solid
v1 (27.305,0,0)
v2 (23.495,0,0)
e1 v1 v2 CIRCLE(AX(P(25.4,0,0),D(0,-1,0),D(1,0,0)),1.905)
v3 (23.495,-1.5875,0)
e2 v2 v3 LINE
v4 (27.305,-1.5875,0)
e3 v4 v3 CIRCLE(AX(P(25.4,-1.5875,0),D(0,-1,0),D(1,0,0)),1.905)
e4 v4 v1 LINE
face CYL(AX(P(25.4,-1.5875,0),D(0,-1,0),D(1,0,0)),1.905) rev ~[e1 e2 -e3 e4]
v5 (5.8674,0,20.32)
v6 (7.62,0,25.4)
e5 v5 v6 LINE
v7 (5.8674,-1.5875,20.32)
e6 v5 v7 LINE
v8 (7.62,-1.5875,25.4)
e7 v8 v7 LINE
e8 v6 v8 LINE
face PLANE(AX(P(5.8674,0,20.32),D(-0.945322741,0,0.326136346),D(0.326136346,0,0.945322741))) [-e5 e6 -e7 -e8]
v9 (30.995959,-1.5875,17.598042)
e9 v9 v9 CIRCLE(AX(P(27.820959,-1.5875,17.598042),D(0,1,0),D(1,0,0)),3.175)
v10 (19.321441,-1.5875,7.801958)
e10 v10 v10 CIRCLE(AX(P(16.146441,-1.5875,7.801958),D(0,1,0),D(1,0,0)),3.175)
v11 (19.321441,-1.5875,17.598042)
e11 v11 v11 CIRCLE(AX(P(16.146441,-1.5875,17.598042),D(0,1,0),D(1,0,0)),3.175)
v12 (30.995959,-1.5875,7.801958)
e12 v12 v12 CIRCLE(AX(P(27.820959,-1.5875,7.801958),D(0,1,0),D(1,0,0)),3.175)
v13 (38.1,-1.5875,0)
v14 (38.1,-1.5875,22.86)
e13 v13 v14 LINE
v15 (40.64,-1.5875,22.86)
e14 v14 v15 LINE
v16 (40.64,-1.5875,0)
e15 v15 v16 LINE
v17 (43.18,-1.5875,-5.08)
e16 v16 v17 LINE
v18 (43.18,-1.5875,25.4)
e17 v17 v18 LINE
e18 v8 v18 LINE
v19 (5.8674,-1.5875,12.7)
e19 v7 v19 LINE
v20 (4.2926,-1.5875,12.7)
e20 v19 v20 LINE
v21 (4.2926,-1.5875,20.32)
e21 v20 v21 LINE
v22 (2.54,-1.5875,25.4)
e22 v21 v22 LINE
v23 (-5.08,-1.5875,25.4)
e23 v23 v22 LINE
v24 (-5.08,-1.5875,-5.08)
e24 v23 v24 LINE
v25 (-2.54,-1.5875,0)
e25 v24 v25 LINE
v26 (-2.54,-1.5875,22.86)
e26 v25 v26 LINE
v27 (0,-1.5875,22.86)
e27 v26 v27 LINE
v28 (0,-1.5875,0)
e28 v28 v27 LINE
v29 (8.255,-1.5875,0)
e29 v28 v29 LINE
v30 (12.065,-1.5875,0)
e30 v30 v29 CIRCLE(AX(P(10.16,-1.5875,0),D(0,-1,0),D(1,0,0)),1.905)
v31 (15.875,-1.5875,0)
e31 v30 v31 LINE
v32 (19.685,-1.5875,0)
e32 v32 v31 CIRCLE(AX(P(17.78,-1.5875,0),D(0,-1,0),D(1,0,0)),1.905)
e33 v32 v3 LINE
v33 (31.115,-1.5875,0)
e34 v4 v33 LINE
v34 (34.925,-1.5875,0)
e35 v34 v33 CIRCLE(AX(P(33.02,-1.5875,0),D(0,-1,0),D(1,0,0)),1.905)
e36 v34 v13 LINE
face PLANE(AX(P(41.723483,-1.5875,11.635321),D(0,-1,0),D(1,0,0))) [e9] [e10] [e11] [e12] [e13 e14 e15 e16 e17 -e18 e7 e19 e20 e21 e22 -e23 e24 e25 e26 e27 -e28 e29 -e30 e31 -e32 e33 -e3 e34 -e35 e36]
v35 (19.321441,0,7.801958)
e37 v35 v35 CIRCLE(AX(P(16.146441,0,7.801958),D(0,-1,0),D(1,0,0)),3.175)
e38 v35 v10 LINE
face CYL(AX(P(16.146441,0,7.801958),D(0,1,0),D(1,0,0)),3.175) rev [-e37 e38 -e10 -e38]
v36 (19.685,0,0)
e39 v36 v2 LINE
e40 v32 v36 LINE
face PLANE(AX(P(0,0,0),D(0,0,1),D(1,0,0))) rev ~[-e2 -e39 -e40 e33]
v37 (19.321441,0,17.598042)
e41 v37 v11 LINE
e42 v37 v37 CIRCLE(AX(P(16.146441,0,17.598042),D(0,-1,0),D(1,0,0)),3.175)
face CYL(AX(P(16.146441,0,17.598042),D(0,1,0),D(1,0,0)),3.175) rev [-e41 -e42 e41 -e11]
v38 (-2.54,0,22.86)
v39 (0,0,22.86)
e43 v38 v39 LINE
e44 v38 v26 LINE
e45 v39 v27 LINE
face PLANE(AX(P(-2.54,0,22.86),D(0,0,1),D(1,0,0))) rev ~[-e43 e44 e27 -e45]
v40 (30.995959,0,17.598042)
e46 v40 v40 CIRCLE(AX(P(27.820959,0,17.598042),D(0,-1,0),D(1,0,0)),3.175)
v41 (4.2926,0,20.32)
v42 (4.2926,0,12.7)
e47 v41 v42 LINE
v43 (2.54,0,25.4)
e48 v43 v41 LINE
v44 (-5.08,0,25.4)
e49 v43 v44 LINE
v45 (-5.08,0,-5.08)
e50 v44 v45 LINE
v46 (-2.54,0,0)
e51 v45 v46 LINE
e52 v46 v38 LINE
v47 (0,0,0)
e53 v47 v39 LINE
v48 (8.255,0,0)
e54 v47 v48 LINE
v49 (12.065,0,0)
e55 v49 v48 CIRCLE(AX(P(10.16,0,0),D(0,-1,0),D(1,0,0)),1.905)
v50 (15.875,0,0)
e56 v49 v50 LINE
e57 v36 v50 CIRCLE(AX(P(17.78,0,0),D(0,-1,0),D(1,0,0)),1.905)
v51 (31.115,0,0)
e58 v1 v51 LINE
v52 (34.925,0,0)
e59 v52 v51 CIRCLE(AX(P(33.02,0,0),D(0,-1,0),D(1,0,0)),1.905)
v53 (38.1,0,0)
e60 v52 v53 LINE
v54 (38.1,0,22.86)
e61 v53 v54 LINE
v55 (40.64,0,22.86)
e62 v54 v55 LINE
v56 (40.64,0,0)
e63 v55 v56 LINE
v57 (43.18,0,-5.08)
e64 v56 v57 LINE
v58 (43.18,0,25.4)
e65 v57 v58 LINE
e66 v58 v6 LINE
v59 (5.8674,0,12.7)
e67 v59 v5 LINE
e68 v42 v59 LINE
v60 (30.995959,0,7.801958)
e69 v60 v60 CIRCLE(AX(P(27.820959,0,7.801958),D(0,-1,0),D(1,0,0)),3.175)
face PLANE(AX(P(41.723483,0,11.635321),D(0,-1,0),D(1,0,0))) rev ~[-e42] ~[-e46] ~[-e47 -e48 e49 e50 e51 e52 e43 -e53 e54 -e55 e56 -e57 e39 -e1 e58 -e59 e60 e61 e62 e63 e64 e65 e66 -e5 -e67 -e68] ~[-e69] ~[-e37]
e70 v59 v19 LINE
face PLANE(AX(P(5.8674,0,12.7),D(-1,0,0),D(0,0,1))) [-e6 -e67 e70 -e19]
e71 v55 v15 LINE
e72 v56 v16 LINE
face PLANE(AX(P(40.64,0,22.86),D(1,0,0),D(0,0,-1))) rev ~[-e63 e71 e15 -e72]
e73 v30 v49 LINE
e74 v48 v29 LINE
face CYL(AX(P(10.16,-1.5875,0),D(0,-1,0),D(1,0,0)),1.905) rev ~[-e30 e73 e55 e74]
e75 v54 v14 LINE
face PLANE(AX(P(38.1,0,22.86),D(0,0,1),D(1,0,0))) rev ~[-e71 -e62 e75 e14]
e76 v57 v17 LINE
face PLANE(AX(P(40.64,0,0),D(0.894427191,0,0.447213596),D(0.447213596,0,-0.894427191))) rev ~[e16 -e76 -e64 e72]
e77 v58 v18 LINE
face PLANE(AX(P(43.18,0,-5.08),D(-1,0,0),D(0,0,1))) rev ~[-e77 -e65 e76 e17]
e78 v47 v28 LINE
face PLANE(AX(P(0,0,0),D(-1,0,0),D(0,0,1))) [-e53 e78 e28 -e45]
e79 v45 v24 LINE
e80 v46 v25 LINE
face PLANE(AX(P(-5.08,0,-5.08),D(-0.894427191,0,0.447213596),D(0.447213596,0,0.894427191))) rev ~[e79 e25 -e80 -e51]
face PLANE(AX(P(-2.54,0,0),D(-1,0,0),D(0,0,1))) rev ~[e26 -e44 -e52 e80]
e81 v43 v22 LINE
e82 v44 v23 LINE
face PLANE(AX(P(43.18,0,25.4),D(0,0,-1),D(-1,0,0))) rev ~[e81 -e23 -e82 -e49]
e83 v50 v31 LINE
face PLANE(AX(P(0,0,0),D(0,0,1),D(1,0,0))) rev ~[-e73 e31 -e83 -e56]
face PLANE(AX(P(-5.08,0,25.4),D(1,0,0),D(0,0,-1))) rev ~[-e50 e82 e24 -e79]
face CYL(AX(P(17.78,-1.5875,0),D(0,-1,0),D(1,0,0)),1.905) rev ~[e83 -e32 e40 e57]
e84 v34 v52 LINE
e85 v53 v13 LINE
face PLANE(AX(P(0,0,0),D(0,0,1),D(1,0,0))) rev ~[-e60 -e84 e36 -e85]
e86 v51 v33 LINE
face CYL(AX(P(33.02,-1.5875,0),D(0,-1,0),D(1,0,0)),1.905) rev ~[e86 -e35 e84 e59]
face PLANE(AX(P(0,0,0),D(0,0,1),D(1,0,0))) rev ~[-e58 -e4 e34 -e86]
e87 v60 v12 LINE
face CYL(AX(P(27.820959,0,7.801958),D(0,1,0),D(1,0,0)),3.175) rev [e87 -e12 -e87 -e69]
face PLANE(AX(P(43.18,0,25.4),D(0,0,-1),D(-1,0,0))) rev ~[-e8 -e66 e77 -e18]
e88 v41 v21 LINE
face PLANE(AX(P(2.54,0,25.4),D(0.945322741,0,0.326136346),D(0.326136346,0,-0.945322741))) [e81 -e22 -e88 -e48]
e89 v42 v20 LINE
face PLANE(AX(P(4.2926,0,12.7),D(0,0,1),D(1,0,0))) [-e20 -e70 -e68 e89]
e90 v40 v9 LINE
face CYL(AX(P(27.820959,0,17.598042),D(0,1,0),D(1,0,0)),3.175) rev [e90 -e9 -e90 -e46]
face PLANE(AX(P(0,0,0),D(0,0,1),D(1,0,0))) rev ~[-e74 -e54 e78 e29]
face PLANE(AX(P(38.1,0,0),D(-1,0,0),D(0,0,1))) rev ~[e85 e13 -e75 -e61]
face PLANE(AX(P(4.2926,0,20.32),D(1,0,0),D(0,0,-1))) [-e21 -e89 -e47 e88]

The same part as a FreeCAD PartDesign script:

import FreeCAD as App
import Part
import Sketcher

V = App.Vector
Q = App.Units.Quantity

doc = App.newDocument("Part")
body = doc.addObject("PartDesign::Body", "Body")

# Sketch on XZ plane
sketch1 = body.newObject("Sketcher::SketchObject", "Sketch")
sketch1.AttachmentSupport = (doc.getObject("XZ_Plane"), [""])
sketch1.MapMode = "FlatFace"
sketch1.addGeometry(Part.LineSegment(V(0, 25, 0), V(0, 0, 0)), False)
sketch1.addGeometry(Part.LineSegment(V(0, 0, 0), V(38, 0, 0)), False)
sketch1.addGeometry(Part.LineSegment(V(38, 0, 0), V(38, 25, 0)), False)
sketch1.addGeometry(Part.LineSegment(V(38, 25, 0), V(0, 25, 0)), False)
sketch1.addConstraint(Sketcher.Constraint("Coincident", 0, 2, 1, 1))
sketch1.addConstraint(Sketcher.Constraint("Coincident", 1, 2, 2, 1))
sketch1.addConstraint(Sketcher.Constraint("Coincident", 2, 2, 3, 1))
sketch1.addConstraint(Sketcher.Constraint("Coincident", 3, 2, 0, 1))
sketch1.addConstraint(Sketcher.Constraint("Vertical", 0))
sketch1.addConstraint(Sketcher.Constraint("Horizontal", 1))
sketch1.addConstraint(Sketcher.Constraint("Vertical", 2))
sketch1.addConstraint(Sketcher.Constraint("Horizontal", 3))
sketch1.addConstraint(Sketcher.Constraint("Coincident", 0, 2, -1, 1))
sketch1.addConstraint(Sketcher.Constraint("DistanceY", 0, 2, 0, 1, Q("1 in")))
sketch1.addConstraint(Sketcher.Constraint("DistanceX", 1, 1, 1, 2, Q("1.5 in")))
pad1 = body.newObject("PartDesign::Pad", "Pad")
pad1.Profile = sketch1
pad1.Length = Q("0.0625 in")

# Sketch on XZ plane
sketch2 = body.newObject("Sketcher::SketchObject", "Sketch001")
sketch2.AttachmentSupport = (doc.getObject("XZ_Plane"), [""])
sketch2.MapMode = "FlatFace"
sketch2.addGeometry(Part.LineSegment(V(43.2, 25.4, 0), V(38.1, 25.4, 0)), False)
sketch2.addGeometry(Part.LineSegment(V(38.1, 25.4, 0), V(38.1, 22.9, 0)), False)
sketch2.addGeometry(Part.LineSegment(V(38.1, 22.9, 0), V(40.6, 22.9, 0)), False)
sketch2.addGeometry(Part.LineSegment(V(40.6, 22.9, 0), V(40.6, 0, 0)), False)
sketch2.addGeometry(Part.LineSegment(V(40.6, 0, 0), V(43.2, -5.1, 0)), False)
sketch2.addGeometry(Part.LineSegment(V(43.2, -5.1, 0), V(43.2, 25.4, 0)), False)
sketch2.addGeometry(Part.LineSegment(V(-2.5, 22.9, 0), V(0, 22.9, 0)), False)
sketch2.addGeometry(Part.LineSegment(V(0, 22.9, 0), V(0, 25.4, 0)), False)
sketch2.addGeometry(Part.LineSegment(V(0, 25.4, 0), V(-5.1, 25.4, 0)), False)
sketch2.addGeometry(Part.LineSegment(V(-5.1, 25.4, 0), V(-5.1, -5.1, 0)), False)
sketch2.addGeometry(Part.LineSegment(V(-5.1, -5.1, 0), V(-2.5, 0, 0)), False)
sketch2.addGeometry(Part.LineSegment(V(-2.5, 0, 0), V(-2.5, 22.9, 0)), False)
sketch2.addConstraint(Sketcher.Constraint("Coincident", 0, 2, 1, 1))
sketch2.addConstraint(Sketcher.Constraint("Coincident", 1, 2, 2, 1))
sketch2.addConstraint(Sketcher.Constraint("Coincident", 2, 2, 3, 1))
sketch2.addConstraint(Sketcher.Constraint("Coincident", 3, 2, 4, 1))
sketch2.addConstraint(Sketcher.Constraint("Coincident", 4, 2, 5, 1))
sketch2.addConstraint(Sketcher.Constraint("Coincident", 5, 2, 0, 1))
sketch2.addConstraint(Sketcher.Constraint("Coincident", 6, 2, 7, 1))
sketch2.addConstraint(Sketcher.Constraint("Coincident", 7, 2, 8, 1))
sketch2.addConstraint(Sketcher.Constraint("Coincident", 8, 2, 9, 1))
sketch2.addConstraint(Sketcher.Constraint("Coincident", 9, 2, 10, 1))
sketch2.addConstraint(Sketcher.Constraint("Coincident", 10, 2, 11, 1))
sketch2.addConstraint(Sketcher.Constraint("Coincident", 11, 2, 6, 1))
sketch2.addConstraint(Sketcher.Constraint("Horizontal", 0))
sketch2.addConstraint(Sketcher.Constraint("Vertical", 1))
sketch2.addConstraint(Sketcher.Constraint("Horizontal", 2))
sketch2.addConstraint(Sketcher.Constraint("Vertical", 3))
sketch2.addConstraint(Sketcher.Constraint("Vertical", 5))
sketch2.addConstraint(Sketcher.Constraint("Horizontal", 6))
sketch2.addConstraint(Sketcher.Constraint("Vertical", 7))
sketch2.addConstraint(Sketcher.Constraint("Horizontal", 8))
sketch2.addConstraint(Sketcher.Constraint("Vertical", 9))
sketch2.addConstraint(Sketcher.Constraint("Vertical", 11))
sketch2.addConstraint(Sketcher.Constraint("PointOnObject", 3, 2, -1))
sketch2.addConstraint(Sketcher.Constraint("PointOnObject", 6, 2, -2))
sketch2.addConstraint(Sketcher.Constraint("PointOnObject", 10, 2, -1))
sketch2.addConstraint(Sketcher.Constraint("Horizontal", 2, 2, 6, 2))
sketch2.addConstraint(Sketcher.Constraint("Horizontal", 5, 2, 7, 2))
sketch2.addConstraint(Sketcher.Constraint("Horizontal", 4, 2, 9, 2))
sketch2.addConstraint(Sketcher.Constraint("Equal", 2, 6))
sketch2.addConstraint(Sketcher.Constraint("Equal", 0, 8))
sketch2.addConstraint(Sketcher.Constraint("Equal", 6, 1))
sketch2.addConstraint(Sketcher.Constraint("DistanceX", 0, 2, 0, 1, Q("0.2 in")))
sketch2.addConstraint(Sketcher.Constraint("DistanceX", 2, 1, 2, 2, Q("0.1 in")))
sketch2.addConstraint(Sketcher.Constraint("DistanceY", 3, 2, 3, 1, Q("0.9 in")))
sketch2.addConstraint(Sketcher.Constraint("DistanceY", 5, 1, 5, 2, Q("1.2 in")))
sketch2.addConstraint(Sketcher.Constraint("DistanceX", -1, 1, 0, 2, Q("1.5 in")))
pad2 = body.newObject("PartDesign::Pad", "Pad001")
pad2.Profile = sketch2
pad2.Type = "UpToLast"

# Sketch on XZ plane
sketch3 = body.newObject("Sketcher::SketchObject", "Sketch002")
sketch3.AttachmentSupport = (doc.getObject("XZ_Plane"), [""])
sketch3.MapMode = "FlatFace"
sketch3.addGeometry(Part.LineSegment(V(7.6, 25.4, 0), V(2.5, 25.4, 0)), False)
sketch3.addGeometry(Part.LineSegment(V(2.5, 25.4, 0), V(4.3, 20.3, 0)), False)
sketch3.addGeometry(Part.LineSegment(V(4.3, 20.3, 0), V(4.3, 12.7, 0)), False)
sketch3.addGeometry(Part.LineSegment(V(4.3, 12.7, 0), V(5.9, 12.7, 0)), False)
sketch3.addGeometry(Part.LineSegment(V(5.9, 12.7, 0), V(5.9, 20.3, 0)), False)
sketch3.addGeometry(Part.LineSegment(V(5.9, 20.3, 0), V(7.6, 25.4, 0)), False)
sketch3.addConstraint(Sketcher.Constraint("Coincident", 0, 2, 1, 1))
sketch3.addConstraint(Sketcher.Constraint("Coincident", 1, 2, 2, 1))
sketch3.addConstraint(Sketcher.Constraint("Coincident", 2, 2, 3, 1))
sketch3.addConstraint(Sketcher.Constraint("Coincident", 3, 2, 4, 1))
sketch3.addConstraint(Sketcher.Constraint("Coincident", 4, 2, 5, 1))
sketch3.addConstraint(Sketcher.Constraint("Coincident", 5, 2, 0, 1))
sketch3.addConstraint(Sketcher.Constraint("Horizontal", 0))
sketch3.addConstraint(Sketcher.Constraint("Vertical", 2))
sketch3.addConstraint(Sketcher.Constraint("Horizontal", 3))
sketch3.addConstraint(Sketcher.Constraint("Vertical", 4))
sketch3.addConstraint(Sketcher.Constraint("Horizontal", 1, 2, 4, 2))
sketch3.addConstraint(Sketcher.Constraint("Equal", 1, 5))
sketch3.addConstraint(Sketcher.Constraint("DistanceX", 0, 2, 0, 1, Q("0.2 in")))
sketch3.addConstraint(Sketcher.Constraint("DistanceY", 2, 2, 2, 1, Q("0.3 in")))
sketch3.addConstraint(Sketcher.Constraint("DistanceY", -1, 1, 0, 2, Q("1 in")))
sketch3.addConstraint(Sketcher.Constraint("DistanceX", -1, 1, 0, 2, Q("0.1 in")))
sketch3.addConstraint(Sketcher.Constraint("DistanceY", -1, 1, 1, 2, Q("0.8 in")))
sketch3.addConstraint(Sketcher.Constraint("DistanceX", 3, 1, 3, 2, Q("0.062 in")))
pocket1 = body.newObject("PartDesign::Pocket", "Pocket")
pocket1.Profile = sketch3
pocket1.Type = "ThroughAll"
pocket1.Reversed = True

# Sketch on XZ plane
sketch4 = body.newObject("Sketcher::SketchObject", "Sketch003")
sketch4.AttachmentSupport = (doc.getObject("XZ_Plane"), [""])
sketch4.MapMode = "FlatFace"
sketch4.addGeometry(Part.Circle(V(16.1, 17.6, 0), V(0, 0, 1), 3.2), False)
sketch4.addGeometry(Part.Circle(V(27.8, 17.6, 0), V(0, 0, 1), 3.2), False)
sketch4.addGeometry(Part.Circle(V(16.1, 7.8, 0), V(0, 0, 1), 3.2), False)
sketch4.addGeometry(Part.Circle(V(27.8, 7.8, 0), V(0, 0, 1), 3.2), False)
sketch4.addConstraint(Sketcher.Constraint("Equal", 0, 1))
sketch4.addConstraint(Sketcher.Constraint("Equal", 1, 2))
sketch4.addConstraint(Sketcher.Constraint("Equal", 2, 3))
sketch4.addConstraint(Sketcher.Constraint("Horizontal", 0, 3, 1, 3))
sketch4.addConstraint(Sketcher.Constraint("Horizontal", 2, 3, 3, 3))
sketch4.addConstraint(Sketcher.Constraint("Vertical", 0, 3, 2, 3))
sketch4.addConstraint(Sketcher.Constraint("Vertical", 1, 3, 3, 3))
sketch4.addConstraint(Sketcher.Constraint("Diameter", 0, Q("0.25 in")))
sketch4.addConstraint(Sketcher.Constraint("DistanceX", -1, 1, 0, 3, 16.146441))
sketch4.addConstraint(Sketcher.Constraint("DistanceY", -1, 1, 0, 3, 17.598042))
sketch4.addConstraint(Sketcher.Constraint("DistanceX", -1, 1, 1, 3, 27.820959))
sketch4.addConstraint(Sketcher.Constraint("DistanceY", -1, 1, 2, 3, 7.801958))
pocket2 = body.newObject("PartDesign::Pocket", "Pocket001")
pocket2.Profile = sketch4
pocket2.Type = "ThroughAll"
pocket2.Reversed = True

# Sketch on XZ plane
sketch5 = body.newObject("Sketcher::SketchObject", "Sketch004")
sketch5.AttachmentSupport = (doc.getObject("XZ_Plane"), [""])
sketch5.MapMode = "FlatFace"
sketch5.AttachmentOffset = App.Placement(V(0, 0, 0.0625 * 25.4), App.Rotation())
sketch5.addGeometry(Part.Circle(V(10.2, 0, 0), V(0, 0, 1), 1.9), False)
sketch5.addGeometry(Part.Circle(V(17.8, 0, 0), V(0, 0, 1), 1.9), False)
sketch5.addGeometry(Part.Circle(V(25.4, 0, 0), V(0, 0, 1), 1.9), False)
sketch5.addGeometry(Part.Circle(V(33, 0, 0), V(0, 0, 1), 1.9), False)
sketch5.addConstraint(Sketcher.Constraint("Equal", 0, 1))
sketch5.addConstraint(Sketcher.Constraint("Equal", 1, 2))
sketch5.addConstraint(Sketcher.Constraint("Equal", 2, 3))
sketch5.addConstraint(Sketcher.Constraint("PointOnObject", 0, 3, -1))
sketch5.addConstraint(Sketcher.Constraint("PointOnObject", 1, 3, -1))
sketch5.addConstraint(Sketcher.Constraint("PointOnObject", 2, 3, -1))
sketch5.addConstraint(Sketcher.Constraint("PointOnObject", 3, 3, -1))
sketch5.addConstraint(Sketcher.Constraint("Diameter", 0, Q("0.15 in")))
sketch5.addConstraint(Sketcher.Constraint("DistanceX", -1, 1, 2, 3, Q("1 in")))
sketch5.addConstraint(Sketcher.Constraint("DistanceX", -1, 1, 0, 3, Q("0.4 in")))
sketch5.addConstraint(Sketcher.Constraint("DistanceX", -1, 1, 1, 3, Q("0.7 in")))
sketch5.addConstraint(Sketcher.Constraint("DistanceX", -1, 1, 3, 3, Q("1.3 in")))
pocket3 = body.newObject("PartDesign::Pocket", "Pocket002")
pocket3.Profile = sketch5
pocket3.Length = Q("1 in")

doc.recompute()
